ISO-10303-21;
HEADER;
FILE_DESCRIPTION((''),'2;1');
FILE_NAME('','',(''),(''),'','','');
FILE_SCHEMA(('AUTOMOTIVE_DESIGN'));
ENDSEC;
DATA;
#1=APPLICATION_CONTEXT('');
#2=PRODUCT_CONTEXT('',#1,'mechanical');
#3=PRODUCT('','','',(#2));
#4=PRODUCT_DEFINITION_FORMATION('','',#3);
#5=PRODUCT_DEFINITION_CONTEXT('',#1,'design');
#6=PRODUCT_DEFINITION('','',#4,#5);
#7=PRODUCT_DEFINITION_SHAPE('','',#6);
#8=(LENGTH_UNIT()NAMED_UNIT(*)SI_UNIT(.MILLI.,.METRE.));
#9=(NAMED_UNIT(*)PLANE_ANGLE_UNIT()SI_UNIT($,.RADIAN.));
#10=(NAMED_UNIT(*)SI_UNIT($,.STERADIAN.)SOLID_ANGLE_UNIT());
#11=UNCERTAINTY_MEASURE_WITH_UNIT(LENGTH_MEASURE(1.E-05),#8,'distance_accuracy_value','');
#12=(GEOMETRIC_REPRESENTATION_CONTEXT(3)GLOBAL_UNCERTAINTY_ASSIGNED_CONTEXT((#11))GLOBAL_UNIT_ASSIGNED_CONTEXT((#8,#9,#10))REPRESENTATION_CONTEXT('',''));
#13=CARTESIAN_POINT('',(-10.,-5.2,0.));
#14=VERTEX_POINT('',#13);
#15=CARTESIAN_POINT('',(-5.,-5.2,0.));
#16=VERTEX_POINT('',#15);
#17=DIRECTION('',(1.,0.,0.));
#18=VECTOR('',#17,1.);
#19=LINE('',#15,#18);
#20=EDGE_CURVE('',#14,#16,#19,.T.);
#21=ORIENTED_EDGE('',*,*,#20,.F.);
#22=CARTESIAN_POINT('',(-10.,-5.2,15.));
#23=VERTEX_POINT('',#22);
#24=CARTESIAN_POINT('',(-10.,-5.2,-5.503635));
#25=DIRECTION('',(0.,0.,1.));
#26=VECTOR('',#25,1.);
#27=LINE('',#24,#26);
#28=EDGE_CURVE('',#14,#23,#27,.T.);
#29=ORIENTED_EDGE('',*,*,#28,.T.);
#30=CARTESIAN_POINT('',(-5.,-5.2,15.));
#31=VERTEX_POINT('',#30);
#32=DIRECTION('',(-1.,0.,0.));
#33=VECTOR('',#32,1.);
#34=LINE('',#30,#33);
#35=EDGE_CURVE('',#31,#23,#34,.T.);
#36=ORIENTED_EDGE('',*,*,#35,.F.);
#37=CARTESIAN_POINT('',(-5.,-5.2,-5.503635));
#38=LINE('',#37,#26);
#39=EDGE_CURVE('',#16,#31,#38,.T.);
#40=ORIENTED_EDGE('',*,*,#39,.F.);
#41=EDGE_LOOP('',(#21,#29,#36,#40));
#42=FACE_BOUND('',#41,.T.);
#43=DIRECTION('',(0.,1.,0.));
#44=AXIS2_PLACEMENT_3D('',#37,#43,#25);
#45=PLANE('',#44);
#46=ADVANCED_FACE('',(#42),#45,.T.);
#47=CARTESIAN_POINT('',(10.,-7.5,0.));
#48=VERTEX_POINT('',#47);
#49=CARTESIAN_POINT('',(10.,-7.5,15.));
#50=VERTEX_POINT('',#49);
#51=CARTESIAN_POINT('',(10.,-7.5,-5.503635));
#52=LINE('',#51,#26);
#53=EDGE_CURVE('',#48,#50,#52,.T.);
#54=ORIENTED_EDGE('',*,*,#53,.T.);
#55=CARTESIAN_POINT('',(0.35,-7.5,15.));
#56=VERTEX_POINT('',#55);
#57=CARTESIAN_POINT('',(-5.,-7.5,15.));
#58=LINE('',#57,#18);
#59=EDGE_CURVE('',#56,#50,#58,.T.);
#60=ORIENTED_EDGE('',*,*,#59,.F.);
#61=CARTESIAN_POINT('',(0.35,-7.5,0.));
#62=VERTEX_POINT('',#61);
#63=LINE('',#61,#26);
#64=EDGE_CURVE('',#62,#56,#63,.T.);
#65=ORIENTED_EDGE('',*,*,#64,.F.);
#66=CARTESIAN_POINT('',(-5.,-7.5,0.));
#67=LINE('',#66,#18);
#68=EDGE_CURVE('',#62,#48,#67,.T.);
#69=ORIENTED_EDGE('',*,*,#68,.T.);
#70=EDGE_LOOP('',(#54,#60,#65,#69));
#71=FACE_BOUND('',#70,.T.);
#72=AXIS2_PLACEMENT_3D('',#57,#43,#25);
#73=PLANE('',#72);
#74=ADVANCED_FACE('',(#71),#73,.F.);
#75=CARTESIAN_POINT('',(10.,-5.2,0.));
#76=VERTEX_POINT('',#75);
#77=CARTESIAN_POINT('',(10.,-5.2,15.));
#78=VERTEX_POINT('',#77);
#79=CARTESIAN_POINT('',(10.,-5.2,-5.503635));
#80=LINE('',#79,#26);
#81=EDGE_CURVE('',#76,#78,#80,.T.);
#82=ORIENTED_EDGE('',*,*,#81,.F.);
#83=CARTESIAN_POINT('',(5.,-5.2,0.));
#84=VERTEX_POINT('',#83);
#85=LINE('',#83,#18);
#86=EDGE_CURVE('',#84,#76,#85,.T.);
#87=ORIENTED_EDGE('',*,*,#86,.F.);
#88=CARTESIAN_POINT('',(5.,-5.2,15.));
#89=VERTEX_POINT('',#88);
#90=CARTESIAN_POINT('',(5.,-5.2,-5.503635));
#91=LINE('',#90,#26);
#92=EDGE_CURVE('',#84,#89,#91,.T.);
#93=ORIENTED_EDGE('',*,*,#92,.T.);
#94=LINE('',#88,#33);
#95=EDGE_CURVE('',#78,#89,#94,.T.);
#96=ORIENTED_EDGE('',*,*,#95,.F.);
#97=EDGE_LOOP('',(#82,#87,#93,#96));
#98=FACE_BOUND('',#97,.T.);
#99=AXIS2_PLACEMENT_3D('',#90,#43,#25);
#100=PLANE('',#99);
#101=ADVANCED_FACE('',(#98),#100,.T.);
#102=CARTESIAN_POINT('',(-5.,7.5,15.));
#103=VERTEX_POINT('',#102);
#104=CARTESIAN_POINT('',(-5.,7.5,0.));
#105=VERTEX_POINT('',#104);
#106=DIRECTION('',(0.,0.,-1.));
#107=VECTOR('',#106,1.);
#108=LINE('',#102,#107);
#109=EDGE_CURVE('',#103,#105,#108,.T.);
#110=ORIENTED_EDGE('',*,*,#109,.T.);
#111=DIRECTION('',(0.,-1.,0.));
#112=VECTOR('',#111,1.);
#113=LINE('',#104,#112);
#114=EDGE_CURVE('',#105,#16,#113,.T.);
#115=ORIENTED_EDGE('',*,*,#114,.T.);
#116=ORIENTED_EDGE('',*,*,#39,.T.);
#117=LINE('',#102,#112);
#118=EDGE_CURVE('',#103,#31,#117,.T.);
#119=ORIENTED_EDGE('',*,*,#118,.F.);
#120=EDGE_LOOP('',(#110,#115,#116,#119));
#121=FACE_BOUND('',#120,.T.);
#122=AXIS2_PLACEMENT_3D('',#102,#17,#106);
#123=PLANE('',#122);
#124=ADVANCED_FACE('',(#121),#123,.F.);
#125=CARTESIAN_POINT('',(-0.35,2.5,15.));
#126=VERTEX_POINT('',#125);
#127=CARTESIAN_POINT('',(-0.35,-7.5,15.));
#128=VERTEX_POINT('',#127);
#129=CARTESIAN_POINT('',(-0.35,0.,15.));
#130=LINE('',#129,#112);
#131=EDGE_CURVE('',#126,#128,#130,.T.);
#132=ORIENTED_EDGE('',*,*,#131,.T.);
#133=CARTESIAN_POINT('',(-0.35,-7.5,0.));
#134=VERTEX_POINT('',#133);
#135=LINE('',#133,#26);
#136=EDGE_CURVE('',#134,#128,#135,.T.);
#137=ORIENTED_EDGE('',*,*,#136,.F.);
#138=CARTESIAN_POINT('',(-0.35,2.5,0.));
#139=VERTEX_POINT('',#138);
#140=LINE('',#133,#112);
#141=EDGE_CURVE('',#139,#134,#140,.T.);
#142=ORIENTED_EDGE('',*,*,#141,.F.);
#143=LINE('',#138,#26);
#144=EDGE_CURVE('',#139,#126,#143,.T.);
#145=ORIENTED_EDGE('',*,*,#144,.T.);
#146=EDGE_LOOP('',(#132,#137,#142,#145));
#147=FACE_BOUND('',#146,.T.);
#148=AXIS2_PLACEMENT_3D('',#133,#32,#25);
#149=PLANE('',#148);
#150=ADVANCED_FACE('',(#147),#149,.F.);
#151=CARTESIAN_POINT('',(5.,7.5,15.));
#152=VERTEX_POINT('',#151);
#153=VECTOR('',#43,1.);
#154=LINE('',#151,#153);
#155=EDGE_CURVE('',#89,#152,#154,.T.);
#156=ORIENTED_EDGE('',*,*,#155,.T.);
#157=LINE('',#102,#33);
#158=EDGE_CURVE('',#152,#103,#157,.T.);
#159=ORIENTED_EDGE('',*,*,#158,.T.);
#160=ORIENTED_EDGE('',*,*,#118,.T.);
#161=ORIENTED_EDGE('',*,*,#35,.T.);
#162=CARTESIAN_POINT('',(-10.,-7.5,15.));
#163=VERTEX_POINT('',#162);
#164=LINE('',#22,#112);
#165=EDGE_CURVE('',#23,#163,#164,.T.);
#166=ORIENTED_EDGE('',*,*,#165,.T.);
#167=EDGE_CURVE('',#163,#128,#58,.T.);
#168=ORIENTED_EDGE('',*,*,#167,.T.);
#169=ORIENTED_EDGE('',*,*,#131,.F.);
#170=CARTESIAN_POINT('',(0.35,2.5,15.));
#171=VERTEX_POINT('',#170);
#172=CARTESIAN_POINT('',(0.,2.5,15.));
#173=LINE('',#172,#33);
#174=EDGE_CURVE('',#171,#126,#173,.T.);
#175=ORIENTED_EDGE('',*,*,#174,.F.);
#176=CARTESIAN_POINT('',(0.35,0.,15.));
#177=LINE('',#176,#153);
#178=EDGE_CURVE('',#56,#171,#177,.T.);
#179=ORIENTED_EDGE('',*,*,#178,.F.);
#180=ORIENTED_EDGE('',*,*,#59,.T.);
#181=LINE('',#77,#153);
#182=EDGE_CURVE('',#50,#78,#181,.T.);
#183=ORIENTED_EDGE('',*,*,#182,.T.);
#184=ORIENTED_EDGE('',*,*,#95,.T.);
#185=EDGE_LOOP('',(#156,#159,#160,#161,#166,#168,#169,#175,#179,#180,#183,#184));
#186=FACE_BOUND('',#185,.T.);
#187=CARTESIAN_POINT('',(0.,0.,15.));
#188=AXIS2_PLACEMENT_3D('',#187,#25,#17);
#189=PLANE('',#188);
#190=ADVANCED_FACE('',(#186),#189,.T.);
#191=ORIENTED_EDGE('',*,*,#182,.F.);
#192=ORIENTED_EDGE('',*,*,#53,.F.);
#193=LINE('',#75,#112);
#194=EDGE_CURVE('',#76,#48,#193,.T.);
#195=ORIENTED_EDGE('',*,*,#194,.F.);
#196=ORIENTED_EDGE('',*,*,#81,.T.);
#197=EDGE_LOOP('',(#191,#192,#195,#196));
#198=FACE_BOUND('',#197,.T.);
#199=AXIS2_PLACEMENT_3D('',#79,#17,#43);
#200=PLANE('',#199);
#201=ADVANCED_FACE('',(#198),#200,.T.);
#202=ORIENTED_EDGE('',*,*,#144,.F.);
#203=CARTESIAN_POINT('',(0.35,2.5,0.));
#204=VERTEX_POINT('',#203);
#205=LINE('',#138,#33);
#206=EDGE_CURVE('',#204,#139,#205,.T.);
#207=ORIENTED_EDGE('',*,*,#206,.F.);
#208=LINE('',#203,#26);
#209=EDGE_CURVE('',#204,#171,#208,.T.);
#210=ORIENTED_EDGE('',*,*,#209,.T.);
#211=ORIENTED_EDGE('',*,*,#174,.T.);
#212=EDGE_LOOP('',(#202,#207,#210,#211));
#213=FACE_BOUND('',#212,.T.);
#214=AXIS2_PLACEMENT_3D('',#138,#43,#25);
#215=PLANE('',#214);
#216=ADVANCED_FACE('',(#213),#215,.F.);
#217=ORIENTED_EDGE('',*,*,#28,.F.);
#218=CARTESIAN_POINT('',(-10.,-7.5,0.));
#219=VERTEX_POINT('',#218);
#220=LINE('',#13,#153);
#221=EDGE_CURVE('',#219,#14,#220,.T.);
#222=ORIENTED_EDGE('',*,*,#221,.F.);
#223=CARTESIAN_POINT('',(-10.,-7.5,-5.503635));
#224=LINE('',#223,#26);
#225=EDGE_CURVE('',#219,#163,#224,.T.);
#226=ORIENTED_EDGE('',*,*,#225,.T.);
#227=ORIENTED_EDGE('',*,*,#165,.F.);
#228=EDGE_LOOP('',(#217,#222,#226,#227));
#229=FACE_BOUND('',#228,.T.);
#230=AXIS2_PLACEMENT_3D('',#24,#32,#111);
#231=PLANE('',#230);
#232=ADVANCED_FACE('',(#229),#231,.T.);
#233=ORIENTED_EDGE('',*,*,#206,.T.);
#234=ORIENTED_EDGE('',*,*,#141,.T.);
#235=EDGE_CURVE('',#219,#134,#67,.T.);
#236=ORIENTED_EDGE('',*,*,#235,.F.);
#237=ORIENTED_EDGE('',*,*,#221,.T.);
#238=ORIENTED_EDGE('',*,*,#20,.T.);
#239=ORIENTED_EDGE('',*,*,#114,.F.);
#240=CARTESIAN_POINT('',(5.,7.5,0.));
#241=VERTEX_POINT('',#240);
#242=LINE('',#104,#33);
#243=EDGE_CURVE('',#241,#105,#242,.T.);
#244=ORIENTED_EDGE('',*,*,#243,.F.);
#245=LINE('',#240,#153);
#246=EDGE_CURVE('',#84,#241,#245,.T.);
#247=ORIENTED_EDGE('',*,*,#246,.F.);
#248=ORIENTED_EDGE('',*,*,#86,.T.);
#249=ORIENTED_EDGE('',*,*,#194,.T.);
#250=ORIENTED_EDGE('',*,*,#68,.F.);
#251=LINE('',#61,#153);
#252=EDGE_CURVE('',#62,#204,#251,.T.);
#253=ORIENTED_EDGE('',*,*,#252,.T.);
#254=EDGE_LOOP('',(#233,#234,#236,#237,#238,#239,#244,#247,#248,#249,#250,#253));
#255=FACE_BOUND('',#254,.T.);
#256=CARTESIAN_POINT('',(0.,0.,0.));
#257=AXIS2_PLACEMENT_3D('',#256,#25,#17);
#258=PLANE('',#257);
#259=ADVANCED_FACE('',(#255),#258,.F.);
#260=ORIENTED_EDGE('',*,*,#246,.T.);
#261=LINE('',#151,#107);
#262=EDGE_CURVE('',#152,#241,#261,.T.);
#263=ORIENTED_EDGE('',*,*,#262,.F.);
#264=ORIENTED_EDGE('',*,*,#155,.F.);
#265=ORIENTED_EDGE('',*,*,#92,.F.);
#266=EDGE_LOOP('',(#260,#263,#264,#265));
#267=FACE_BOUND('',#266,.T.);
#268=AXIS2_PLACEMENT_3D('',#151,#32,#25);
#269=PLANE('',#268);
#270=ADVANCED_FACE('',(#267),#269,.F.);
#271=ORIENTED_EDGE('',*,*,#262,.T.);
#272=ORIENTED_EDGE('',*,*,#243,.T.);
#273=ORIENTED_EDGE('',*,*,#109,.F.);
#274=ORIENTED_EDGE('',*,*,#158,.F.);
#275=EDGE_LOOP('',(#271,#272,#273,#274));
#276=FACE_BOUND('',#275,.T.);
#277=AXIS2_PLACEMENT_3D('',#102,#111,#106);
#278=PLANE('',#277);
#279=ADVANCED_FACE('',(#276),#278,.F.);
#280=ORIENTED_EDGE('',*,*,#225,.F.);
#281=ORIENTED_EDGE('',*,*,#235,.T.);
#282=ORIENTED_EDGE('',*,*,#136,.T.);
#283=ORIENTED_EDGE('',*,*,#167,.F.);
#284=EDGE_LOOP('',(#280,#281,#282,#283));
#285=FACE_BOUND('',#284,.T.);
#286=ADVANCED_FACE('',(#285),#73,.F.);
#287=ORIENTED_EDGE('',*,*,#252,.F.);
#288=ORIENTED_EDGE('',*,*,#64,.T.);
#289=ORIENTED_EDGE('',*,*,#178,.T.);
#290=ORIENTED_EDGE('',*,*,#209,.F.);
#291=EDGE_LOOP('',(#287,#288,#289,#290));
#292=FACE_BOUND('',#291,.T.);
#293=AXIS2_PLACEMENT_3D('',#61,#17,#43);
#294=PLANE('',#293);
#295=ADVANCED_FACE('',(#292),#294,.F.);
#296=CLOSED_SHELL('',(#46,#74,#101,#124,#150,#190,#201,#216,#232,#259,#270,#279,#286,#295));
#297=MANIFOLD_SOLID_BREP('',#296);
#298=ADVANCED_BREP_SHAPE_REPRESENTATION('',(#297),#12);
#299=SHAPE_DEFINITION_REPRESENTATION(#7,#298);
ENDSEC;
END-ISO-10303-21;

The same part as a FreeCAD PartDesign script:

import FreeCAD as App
import Part
import Sketcher

V = App.Vector
Q = App.Units.Quantity


def add_polygon(sketch, points):
    """Adds a closed chain of lines whose ends are joined by coincident constraints."""
    first, n = sketch.GeometryCount, len(points)
    for a, b in zip(points, points[1:] + points[:1]):
        sketch.addGeometry(Part.LineSegment(App.Vector(*a, 0), App.Vector(*b, 0)), False)
    for i in range(n):
        sketch.addConstraint(Sketcher.Constraint("Coincident", first + i, 2, first + (i + 1) % n, 1))

doc = App.newDocument("Part")
body = doc.addObject("PartDesign::Body", "Body")

sketch1 = body.newObject("Sketcher::SketchObject", "Sketch")
sketch1.AttachmentSupport = (doc.getObject("XY_Plane"), [""])
sketch1.MapMode = "FlatFace"
add_polygon(sketch1, [(-5, 8), (-5, -8), (5, -8), (5, 8)])
sketch1.addConstraint([
    Sketcher.Constraint("Vertical", 0),
    Sketcher.Constraint("Horizontal", 1),
    Sketcher.Constraint("Vertical", 2),
    Sketcher.Constraint("Horizontal", 3),
    Sketcher.Constraint("Symmetric", 0, 2, 2, 2, -1, 1),
    Sketcher.Constraint("DistanceX", 1, 1, 1, 2, Q("10 mm")),
    Sketcher.Constraint("DistanceY", 0, 2, 0, 1, Q("15 mm")),
])
pad1 = body.newObject("PartDesign::Pad", "Pad")
pad1.Profile = sketch1
pad1.Length = 15

sketch2 = body.newObject("Sketcher::SketchObject", "Sketch001")
sketch2.AttachmentSupport = (doc.getObject("XY_Plane"), [""])
sketch2.MapMode = "FlatFace"
sketch2.AttachmentOffset = App.Placement(V(0, 0, 15), App.Rotation())
add_polygon(sketch2, [(-0.3, 2.5), (-0.3, -7.5), (0.3, -7.5), (0.3, 2.5)])
sketch2.addConstraint([
    Sketcher.Constraint("Vertical", 0),
    Sketcher.Constraint("Horizontal", 1),
    Sketcher.Constraint("Vertical", 2),
    Sketcher.Constraint("Horizontal", 3),
    Sketcher.Constraint("DistanceY", 0, 2, 0, 1, Q("10 mm")),
    Sketcher.Constraint("DistanceX", 1, 1, 1, 2, Q("0.7 mm")),
    Sketcher.Constraint("DistanceY", 0, 2, -1, 1, Q("7.5 mm")),
    Sketcher.Constraint("DistanceX", 0, 2, -1, 1, Q("0.35 mm")),
])
pocket1 = body.newObject("PartDesign::Pocket", "Pocket")
pocket1.Profile = sketch2
pocket1.Type = "ThroughAll"
pocket1.Midplane = True

sketch3 = body.newObject("Sketcher::SketchObject", "Sketch002")
sketch3.AttachmentSupport = (doc.getObject("XY_Plane"), [""])
sketch3.MapMode = "FlatFace"
sketch3.AttachmentOffset = App.Placement(V(0, 0, 15), App.Rotation())
add_polygon(sketch3, [(-10, -5.2), (-10, -7.5), (-5, -7.5), (-5, -5.2)])
add_polygon(sketch3, [(5, -5.2), (5, -7.5), (10, -7.5), (10, -5.2)])
sketch3.addConstraint([
    Sketcher.Constraint("Vertical", 0),
    Sketcher.Constraint("Horizontal", 1),
    Sketcher.Constraint("Vertical", 2),
    Sketcher.Constraint("Horizontal", 3),
    Sketcher.Constraint("Vertical", 4),
    Sketcher.Constraint("Horizontal", 5),
    Sketcher.Constraint("Vertical", 6),
    Sketcher.Constraint("Horizontal", 7),
    Sketcher.Constraint("Symmetric", 1, 2, 4, 2, -2),
    Sketcher.Constraint("Symmetric", 3, 2, 6, 2, -2),
    Sketcher.Constraint("DistanceX", 1, 1, 1, 2, Q("5 mm")),
    Sketcher.Constraint("DistanceY", 0, 2, 0, 1, Q("2.3 mm")),
    Sketcher.Constraint("DistanceX", 0, 2, -1, 1, Q("10 mm")),
    Sketcher.Constraint("DistanceY", 0, 2, -1, 1, Q("7.5 mm")),
])
pad2 = body.newObject("PartDesign::Pad", "Pad001")
pad2.Profile = sketch3
pad2.Length = 15
pad2.Reversed = True

doc.recompute()
